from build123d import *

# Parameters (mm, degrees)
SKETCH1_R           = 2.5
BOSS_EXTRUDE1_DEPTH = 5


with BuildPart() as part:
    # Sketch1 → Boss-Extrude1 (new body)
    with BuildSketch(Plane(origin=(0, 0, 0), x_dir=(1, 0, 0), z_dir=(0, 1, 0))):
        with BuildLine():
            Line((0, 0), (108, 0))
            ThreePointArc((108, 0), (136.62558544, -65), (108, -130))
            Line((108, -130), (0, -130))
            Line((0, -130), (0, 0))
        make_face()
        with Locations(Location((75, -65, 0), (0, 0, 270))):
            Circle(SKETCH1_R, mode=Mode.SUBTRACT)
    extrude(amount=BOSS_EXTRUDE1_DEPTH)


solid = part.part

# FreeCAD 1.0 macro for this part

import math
import FreeCAD as App
import Part
import Sketcher
from FreeCAD import Vector

doc = App.newDocument("Part")
params = doc.addObject("Spreadsheet::Sheet", "Params")
for row, (alias, value) in enumerate([
    ("sketch1_diameter", "5 mm"),
    ("sketch1_width", "108 mm"),
    ("sketch1_height", "130 mm"),
    ("pad1_length", "5 mm"),
], start=1):
    params.set(f"A{row}", alias)
    params.set(f"B{row}", "=" + value)
    params.setAlias(f"B{row}", alias)

body = doc.addObject("PartDesign::Body", "Body")

sketch1 = body.newObject("Sketcher::SketchObject", "Sketch")
sketch1.AttachmentSupport = (doc.getObject("XZ_Plane"), [""])
sketch1.MapMode = "FlatFace"
sketch1.addGeometry(Part.LineSegment(Vector(108, 0, 0), Vector(0, 0, 0)), False)
sketch1.addGeometry(Part.LineSegment(Vector(0, 0, 0), Vector(0, 130, 0)), False)
sketch1.addGeometry(Part.LineSegment(Vector(0, 130, 0), Vector(108, 130, 0)), False)
sketch1.addGeometry(Part.ArcOfCircle(Part.Circle(Vector(48.515175, 65, 0), Vector(0, 0, 1), 88.11041), math.radians(-47.536773), math.radians(47.536773)), False)
sketch1.addGeometry(Part.Circle(Vector(75, 65, 0), Vector(0, 0, 1), 2.5), False)
sketch1.addConstraint(Sketcher.Constraint("Coincident", 0, 2, 1, 1))
sketch1.addConstraint(Sketcher.Constraint("Coincident", 1, 2, 2, 1))
sketch1.addConstraint(Sketcher.Constraint("Coincident", 2, 2, 3, 2))
sketch1.addConstraint(Sketcher.Constraint("Coincident", 3, 1, 0, 1))
sketch1.addConstraint(Sketcher.Constraint("Horizontal", 0))
sketch1.addConstraint(Sketcher.Constraint("Vertical", 1))
sketch1.addConstraint(Sketcher.Constraint("Horizontal", 2))
sketch1.addConstraint(Sketcher.Constraint("Coincident", 0, 2, -1, 1))
sketch1.addConstraint(Sketcher.Constraint("Horizontal", 3, 3, 4, 3))
sketch1.addConstraint(Sketcher.Constraint("Vertical", 2, 2, 3, 1))
sketch1.addConstraint(Sketcher.Constraint("Diameter", 4, 5.0))
sketch1.addConstraint(Sketcher.Constraint("DistanceX", 0, 2, 0, 1, 108.0))
sketch1.addConstraint(Sketcher.Constraint("DistanceY", 1, 1, 1, 2, 130.0))
sketch1.addConstraint(Sketcher.Constraint("DistanceX", -1, 1, 4, 3, 75.0))
sketch1.addConstraint(Sketcher.Constraint("Radius", 3, 88.11041))
sketch1.setExpression("Constraints[10]", "Params.sketch1_diameter")
sketch1.setExpression("Constraints[11]", "Params.sketch1_width")
sketch1.setExpression("Constraints[12]", "Params.sketch1_height")
pad1 = body.newObject("PartDesign::Pad", "Pad")
pad1.Profile = sketch1
pad1.setExpression("Length", "Params.pad1_length")
pad1.Reversed = True

doc.recompute()
